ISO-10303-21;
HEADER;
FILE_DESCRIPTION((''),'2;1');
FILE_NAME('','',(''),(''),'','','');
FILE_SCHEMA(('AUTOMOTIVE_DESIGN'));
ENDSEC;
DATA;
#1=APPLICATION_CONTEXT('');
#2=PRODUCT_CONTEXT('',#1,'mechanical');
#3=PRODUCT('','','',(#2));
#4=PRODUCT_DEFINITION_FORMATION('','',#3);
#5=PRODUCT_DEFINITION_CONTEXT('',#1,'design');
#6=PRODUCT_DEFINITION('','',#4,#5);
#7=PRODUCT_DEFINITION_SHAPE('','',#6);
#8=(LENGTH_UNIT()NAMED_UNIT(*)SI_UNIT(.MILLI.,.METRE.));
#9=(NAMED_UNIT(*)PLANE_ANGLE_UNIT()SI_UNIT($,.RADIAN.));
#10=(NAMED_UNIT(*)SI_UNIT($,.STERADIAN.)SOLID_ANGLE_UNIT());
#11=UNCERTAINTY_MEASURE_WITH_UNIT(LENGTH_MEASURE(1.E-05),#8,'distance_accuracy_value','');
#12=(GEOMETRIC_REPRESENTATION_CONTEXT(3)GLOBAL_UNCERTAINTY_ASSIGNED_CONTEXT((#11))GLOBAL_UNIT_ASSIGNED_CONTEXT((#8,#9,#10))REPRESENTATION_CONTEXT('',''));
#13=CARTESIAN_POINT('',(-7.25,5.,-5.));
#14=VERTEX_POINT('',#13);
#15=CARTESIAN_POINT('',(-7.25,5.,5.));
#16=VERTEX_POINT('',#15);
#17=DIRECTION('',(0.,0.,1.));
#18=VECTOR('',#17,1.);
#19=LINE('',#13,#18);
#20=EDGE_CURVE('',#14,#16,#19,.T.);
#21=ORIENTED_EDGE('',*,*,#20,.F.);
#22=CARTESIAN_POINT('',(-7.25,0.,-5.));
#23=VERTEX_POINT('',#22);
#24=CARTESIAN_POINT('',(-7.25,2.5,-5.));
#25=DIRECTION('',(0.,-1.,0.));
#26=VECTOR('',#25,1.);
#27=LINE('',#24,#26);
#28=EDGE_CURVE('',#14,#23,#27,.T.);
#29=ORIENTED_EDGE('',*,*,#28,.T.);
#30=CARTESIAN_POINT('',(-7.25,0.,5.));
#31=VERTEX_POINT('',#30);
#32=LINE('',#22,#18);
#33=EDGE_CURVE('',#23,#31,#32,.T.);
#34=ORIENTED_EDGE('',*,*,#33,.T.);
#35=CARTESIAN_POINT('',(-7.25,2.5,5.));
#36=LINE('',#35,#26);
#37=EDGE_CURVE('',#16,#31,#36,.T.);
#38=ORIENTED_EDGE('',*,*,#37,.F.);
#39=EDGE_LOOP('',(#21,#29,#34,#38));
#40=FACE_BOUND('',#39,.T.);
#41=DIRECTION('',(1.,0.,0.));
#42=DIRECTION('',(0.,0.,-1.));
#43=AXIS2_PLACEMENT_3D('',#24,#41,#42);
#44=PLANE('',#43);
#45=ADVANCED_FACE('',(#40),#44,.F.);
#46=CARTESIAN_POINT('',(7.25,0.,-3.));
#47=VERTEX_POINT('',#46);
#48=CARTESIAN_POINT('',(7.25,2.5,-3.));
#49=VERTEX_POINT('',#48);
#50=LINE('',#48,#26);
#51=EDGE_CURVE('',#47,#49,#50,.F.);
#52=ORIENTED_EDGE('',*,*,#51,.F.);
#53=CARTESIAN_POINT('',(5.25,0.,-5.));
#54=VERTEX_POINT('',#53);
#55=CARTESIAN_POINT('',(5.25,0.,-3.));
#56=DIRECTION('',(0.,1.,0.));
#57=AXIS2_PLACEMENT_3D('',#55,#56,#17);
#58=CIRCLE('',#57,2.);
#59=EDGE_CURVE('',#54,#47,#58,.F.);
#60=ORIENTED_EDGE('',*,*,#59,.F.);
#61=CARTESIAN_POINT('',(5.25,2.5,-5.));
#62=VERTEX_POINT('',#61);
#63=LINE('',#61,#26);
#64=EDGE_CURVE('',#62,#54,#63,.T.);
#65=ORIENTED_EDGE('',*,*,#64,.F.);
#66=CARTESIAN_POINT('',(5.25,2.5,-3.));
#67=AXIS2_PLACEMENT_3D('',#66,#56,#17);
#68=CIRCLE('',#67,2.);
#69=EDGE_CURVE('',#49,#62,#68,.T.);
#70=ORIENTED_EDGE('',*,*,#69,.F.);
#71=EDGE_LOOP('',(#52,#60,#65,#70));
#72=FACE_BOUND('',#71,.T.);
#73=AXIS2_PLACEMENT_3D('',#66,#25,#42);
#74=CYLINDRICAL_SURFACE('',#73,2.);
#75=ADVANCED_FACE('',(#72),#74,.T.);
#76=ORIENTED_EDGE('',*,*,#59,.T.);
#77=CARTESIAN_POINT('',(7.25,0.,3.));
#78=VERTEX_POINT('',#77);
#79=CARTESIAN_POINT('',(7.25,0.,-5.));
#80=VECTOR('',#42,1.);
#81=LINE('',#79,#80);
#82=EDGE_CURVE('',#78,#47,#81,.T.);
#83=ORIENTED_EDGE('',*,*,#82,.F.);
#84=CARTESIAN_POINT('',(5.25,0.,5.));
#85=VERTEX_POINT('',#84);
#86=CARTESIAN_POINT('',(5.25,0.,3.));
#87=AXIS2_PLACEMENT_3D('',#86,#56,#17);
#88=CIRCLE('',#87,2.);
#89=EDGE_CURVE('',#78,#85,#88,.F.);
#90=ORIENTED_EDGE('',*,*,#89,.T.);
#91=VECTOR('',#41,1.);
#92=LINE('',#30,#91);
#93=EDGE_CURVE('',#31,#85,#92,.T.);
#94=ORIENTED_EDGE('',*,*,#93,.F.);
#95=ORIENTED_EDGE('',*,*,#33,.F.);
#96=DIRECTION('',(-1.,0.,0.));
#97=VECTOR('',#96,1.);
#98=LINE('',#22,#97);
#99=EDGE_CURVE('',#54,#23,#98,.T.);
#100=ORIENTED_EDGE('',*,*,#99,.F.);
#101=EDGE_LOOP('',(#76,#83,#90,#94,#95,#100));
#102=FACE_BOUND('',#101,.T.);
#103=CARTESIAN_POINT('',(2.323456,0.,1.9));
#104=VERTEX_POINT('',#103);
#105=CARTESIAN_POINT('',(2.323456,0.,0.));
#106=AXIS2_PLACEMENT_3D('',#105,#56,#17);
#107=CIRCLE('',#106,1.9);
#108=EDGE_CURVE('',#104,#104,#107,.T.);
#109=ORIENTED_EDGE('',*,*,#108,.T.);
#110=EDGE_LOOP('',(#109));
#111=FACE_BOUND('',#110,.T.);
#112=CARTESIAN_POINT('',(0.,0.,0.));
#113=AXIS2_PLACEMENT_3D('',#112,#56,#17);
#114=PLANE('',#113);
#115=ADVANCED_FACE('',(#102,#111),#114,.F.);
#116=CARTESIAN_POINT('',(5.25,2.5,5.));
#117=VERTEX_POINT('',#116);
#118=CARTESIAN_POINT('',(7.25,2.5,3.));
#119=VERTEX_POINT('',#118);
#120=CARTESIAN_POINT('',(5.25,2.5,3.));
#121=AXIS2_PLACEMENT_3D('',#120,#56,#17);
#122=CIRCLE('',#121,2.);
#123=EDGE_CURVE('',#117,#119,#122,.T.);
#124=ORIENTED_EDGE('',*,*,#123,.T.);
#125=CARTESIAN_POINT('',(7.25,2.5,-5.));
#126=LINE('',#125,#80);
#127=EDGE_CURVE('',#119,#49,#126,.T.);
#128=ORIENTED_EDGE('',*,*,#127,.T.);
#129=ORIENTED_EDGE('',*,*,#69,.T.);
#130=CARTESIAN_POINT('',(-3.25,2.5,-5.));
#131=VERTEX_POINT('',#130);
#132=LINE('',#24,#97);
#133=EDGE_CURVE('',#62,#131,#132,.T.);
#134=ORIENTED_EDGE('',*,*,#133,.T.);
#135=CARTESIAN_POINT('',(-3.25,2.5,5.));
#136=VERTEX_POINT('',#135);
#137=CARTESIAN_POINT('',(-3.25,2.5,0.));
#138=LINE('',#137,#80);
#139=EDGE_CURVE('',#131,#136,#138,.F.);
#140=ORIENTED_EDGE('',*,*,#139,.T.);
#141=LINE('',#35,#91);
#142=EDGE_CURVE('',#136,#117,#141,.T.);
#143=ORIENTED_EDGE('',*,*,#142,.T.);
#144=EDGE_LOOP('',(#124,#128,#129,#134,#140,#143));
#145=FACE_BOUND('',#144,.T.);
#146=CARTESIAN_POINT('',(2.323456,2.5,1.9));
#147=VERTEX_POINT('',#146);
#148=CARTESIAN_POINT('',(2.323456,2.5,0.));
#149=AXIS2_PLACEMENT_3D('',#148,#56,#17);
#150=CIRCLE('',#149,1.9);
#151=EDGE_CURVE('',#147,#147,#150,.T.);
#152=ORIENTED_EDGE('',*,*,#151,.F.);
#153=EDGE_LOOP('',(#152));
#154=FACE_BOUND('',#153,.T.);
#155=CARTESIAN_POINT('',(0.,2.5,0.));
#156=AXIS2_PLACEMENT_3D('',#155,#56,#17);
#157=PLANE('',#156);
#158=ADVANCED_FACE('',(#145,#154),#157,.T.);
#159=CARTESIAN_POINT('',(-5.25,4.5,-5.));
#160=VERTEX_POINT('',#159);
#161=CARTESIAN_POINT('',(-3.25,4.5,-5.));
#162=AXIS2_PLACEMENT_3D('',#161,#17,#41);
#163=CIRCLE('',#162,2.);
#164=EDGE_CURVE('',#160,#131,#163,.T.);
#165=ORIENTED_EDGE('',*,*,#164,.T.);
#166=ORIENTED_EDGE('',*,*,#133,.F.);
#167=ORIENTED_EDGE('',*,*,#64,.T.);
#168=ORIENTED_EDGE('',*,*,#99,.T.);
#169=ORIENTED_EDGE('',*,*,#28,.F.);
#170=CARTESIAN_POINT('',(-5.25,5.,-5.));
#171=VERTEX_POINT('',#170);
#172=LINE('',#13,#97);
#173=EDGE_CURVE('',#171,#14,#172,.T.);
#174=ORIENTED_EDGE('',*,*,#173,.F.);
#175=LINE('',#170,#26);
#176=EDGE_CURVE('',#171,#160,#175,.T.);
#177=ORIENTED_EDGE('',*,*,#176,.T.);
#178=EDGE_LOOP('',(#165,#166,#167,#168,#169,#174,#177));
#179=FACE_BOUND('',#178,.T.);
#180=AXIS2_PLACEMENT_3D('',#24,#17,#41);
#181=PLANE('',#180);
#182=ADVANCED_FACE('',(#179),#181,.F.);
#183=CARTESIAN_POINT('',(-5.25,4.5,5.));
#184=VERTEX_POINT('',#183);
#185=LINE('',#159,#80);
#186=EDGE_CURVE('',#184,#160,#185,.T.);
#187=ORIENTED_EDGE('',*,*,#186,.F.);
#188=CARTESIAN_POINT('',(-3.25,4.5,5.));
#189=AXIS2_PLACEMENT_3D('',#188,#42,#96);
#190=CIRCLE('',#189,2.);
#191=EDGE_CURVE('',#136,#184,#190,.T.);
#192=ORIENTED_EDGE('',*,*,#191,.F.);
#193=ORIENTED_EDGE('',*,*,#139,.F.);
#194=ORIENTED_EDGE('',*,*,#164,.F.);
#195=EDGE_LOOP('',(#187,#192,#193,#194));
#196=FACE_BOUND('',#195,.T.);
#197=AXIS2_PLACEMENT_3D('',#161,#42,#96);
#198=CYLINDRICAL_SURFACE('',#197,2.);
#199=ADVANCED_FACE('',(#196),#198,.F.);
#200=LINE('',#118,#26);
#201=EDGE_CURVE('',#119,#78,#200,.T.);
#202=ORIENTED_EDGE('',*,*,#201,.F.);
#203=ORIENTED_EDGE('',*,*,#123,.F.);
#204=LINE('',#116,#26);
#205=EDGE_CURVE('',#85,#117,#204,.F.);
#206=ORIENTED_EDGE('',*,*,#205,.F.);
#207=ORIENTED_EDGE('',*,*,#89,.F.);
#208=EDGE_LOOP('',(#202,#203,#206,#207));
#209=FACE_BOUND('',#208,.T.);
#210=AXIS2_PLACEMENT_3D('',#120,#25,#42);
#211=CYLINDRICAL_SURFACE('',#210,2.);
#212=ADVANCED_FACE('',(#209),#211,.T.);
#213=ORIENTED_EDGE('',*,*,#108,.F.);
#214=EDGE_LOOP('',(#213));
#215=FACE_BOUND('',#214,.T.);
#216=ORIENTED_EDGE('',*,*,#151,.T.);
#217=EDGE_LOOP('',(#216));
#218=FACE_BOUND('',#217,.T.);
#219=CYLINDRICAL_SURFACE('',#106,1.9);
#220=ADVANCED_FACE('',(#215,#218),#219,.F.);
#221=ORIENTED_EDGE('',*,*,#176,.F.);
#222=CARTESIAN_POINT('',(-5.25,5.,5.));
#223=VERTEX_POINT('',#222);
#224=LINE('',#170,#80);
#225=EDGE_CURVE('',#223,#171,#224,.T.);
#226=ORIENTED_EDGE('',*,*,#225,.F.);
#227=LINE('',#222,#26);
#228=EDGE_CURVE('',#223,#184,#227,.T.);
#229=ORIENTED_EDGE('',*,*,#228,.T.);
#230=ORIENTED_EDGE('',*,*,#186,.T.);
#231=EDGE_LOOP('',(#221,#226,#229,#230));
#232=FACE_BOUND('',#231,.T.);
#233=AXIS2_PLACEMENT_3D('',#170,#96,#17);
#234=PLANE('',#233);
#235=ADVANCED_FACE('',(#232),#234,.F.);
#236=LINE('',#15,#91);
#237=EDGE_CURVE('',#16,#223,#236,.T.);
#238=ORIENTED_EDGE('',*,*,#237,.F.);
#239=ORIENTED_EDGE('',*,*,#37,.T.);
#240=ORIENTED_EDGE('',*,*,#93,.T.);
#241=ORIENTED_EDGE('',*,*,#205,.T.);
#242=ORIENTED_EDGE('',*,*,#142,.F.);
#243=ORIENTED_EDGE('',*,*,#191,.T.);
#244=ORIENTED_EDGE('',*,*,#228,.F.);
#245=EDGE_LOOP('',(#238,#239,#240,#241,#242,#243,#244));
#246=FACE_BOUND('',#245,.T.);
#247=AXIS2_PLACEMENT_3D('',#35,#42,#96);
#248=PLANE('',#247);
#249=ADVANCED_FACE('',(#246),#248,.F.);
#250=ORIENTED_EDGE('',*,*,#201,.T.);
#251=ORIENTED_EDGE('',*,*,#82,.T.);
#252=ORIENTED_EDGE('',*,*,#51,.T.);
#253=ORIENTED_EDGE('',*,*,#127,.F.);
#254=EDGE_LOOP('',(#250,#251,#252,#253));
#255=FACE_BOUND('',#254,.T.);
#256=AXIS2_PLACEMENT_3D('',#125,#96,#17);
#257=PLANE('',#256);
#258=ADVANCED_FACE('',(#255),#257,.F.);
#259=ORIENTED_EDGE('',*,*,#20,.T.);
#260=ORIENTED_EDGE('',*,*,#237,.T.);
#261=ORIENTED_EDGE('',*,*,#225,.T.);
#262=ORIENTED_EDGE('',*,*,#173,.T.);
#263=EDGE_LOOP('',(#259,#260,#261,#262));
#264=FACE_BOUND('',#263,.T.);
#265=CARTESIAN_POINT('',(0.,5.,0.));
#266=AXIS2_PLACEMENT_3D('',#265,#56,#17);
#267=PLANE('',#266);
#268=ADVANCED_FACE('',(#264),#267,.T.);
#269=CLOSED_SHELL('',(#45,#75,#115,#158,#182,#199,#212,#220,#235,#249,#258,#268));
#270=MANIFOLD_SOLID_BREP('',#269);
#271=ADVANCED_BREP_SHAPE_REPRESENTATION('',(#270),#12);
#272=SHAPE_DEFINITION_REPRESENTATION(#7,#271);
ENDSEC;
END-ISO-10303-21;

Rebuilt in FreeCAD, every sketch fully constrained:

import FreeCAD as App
import Part
import Sketcher

V = App.Vector


def edges_at(feature, points):
    """Names of the edges that pass closest to the given points."""
    edges = feature.Shape.Edges
    near = lambda p: min(range(len(edges)), key=lambda i: edges[i].distToShape(Part.Vertex(*p))[0])
    return sorted({f"Edge{near(p) + 1}" for p in points})


def add_polygon(sketch, points):
    """Adds a closed chain of lines whose ends are joined by coincident constraints."""
    first, n = sketch.GeometryCount, len(points)
    for a, b in zip(points, points[1:] + points[:1]):
        sketch.addGeometry(Part.LineSegment(App.Vector(*a, 0), App.Vector(*b, 0)), False)
    for i in range(n):
        sketch.addConstraint(Sketcher.Constraint("Coincident", first + i, 2, first + (i + 1) % n, 1))

doc = App.newDocument("Part")
params = doc.addObject("Spreadsheet::Sheet", "Params")
for row, (alias, value) in enumerate([
    ("sketch1_height", "10 mm"),
    ("sketch1_width", "14.5 mm"),
    ("pad1_length", "2.5 mm"),
    ("sketch2_diameter", "3.8 mm"),
    ("sketch3_width", "2 mm"),
    ("sketch3_height", "10 mm"),
    ("pad2_length", "2.5 mm"),
    ("fillet_radius", "2 mm"),
    ("fillet2_radius", "2 mm"),
], start=1):
    params.set(f"A{row}", alias)
    params.set(f"B{row}", "=" + value)
    params.setAlias(f"B{row}", alias)

body = doc.addObject("PartDesign::Body", "Body")

sketch1 = doc.addObject("Sketcher::SketchObject", "Sketch")
body.addObject(sketch1)
sketch1.AttachmentSupport = (doc.XZ_Plane, [""])
sketch1.MapMode = "FlatFace"
add_polygon(sketch1, [(-7.25, -5), (-7.25, 5), (7.25, 5), (7.25, -5)])
sketch1.addConstraint([
    Sketcher.Constraint("Vertical", 0),
    Sketcher.Constraint("Horizontal", 1),
    Sketcher.Constraint("Vertical", 2),
    Sketcher.Constraint("Horizontal", 3),
    Sketcher.Constraint("Symmetric", 0, 2, 2, 2, -1, 1),
    Sketcher.Constraint("DistanceY", 0, 1, 0, 2, 10.0),
    Sketcher.Constraint("DistanceX", 1, 1, 1, 2, 14.5),
])
sketch1.setExpression("Constraints[9]", "Params.sketch1_height")
sketch1.setExpression("Constraints[10]", "Params.sketch1_width")
pad1 = doc.addObject("PartDesign::Pad", "Pad")
body.addObject(pad1)
pad1.Profile = sketch1
pad1.setExpression("Length", "Params.pad1_length")
pad1.Reversed = True

sketch2 = doc.addObject("Sketcher::SketchObject", "Sketch001")
body.addObject(sketch2)
sketch2.AttachmentSupport = (doc.XZ_Plane, [""])
sketch2.MapMode = "FlatFace"
sketch2.AttachmentOffset = App.Placement(V(0, 0, -2.5), App.Rotation())
sketch2.addGeometry(Part.Circle(V(2.323456, 0, 0), V(0, 0, 1), 1.9), False)
sketch2.addConstraint([
    Sketcher.Constraint("PointOnObject", 0, 3, -1),
    Sketcher.Constraint("Diameter", 0, 3.8),
    Sketcher.Constraint("DistanceX", -1, 1, 0, 3, 2.323456),
])
sketch2.setExpression("Constraints[1]", "Params.sketch2_diameter")
pocket1 = doc.addObject("PartDesign::Pocket", "Pocket")
body.addObject(pocket1)
pocket1.Profile = sketch2
pocket1.Type = "ThroughAll"
pocket1.Reversed = True

sketch3 = doc.addObject("Sketcher::SketchObject", "Sketch002")
body.addObject(sketch3)
sketch3.AttachmentSupport = (doc.XZ_Plane, [""])
sketch3.MapMode = "FlatFace"
sketch3.AttachmentOffset = App.Placement(V(0, 0, -2.5), App.Rotation())
add_polygon(sketch3, [(-7.25, -5), (-7.25, 5), (-5.25, 5), (-5.25, -5)])
sketch3.addConstraint([
    Sketcher.Constraint("Vertical", 0),
    Sketcher.Constraint("Horizontal", 1),
    Sketcher.Constraint("Vertical", 2),
    Sketcher.Constraint("Horizontal", 3),
    Sketcher.Constraint("DistanceX", 1, 1, 1, 2, 2.0),
    Sketcher.Constraint("DistanceY", 0, 1, 0, 2, 10.0),
    Sketcher.Constraint("DistanceY", -1, 1, 0, 2, 5.0),
    Sketcher.Constraint("DistanceX", 0, 2, -1, 1, 7.25),
])
sketch3.setExpression("Constraints[8]", "Params.sketch3_width")
sketch3.setExpression("Constraints[9]", "Params.sketch3_height")
pad2 = doc.addObject("PartDesign::Pad", "Pad001")
body.addObject(pad2)
pad2.Profile = sketch3
pad2.setExpression("Length", "Params.pad2_length")
pad2.Reversed = True
doc.recompute()

fillet = doc.addObject("PartDesign::Fillet", "Fillet")
body.addObject(fillet)
fillet.Base = (pad2, edges_at(pad2, [(-5.25, 2.5, 0)]))
fillet.setExpression("Radius", "Params.fillet_radius")
doc.recompute()

fillet2 = doc.addObject("PartDesign::Fillet", "Fillet001")
body.addObject(fillet2)
fillet2.Base = (fillet, edges_at(fillet, [(7.25, 1.25, 5), (7.25, 1.25, -5)]))
fillet2.setExpression("Radius", "Params.fillet2_radius")

doc.recompute()
